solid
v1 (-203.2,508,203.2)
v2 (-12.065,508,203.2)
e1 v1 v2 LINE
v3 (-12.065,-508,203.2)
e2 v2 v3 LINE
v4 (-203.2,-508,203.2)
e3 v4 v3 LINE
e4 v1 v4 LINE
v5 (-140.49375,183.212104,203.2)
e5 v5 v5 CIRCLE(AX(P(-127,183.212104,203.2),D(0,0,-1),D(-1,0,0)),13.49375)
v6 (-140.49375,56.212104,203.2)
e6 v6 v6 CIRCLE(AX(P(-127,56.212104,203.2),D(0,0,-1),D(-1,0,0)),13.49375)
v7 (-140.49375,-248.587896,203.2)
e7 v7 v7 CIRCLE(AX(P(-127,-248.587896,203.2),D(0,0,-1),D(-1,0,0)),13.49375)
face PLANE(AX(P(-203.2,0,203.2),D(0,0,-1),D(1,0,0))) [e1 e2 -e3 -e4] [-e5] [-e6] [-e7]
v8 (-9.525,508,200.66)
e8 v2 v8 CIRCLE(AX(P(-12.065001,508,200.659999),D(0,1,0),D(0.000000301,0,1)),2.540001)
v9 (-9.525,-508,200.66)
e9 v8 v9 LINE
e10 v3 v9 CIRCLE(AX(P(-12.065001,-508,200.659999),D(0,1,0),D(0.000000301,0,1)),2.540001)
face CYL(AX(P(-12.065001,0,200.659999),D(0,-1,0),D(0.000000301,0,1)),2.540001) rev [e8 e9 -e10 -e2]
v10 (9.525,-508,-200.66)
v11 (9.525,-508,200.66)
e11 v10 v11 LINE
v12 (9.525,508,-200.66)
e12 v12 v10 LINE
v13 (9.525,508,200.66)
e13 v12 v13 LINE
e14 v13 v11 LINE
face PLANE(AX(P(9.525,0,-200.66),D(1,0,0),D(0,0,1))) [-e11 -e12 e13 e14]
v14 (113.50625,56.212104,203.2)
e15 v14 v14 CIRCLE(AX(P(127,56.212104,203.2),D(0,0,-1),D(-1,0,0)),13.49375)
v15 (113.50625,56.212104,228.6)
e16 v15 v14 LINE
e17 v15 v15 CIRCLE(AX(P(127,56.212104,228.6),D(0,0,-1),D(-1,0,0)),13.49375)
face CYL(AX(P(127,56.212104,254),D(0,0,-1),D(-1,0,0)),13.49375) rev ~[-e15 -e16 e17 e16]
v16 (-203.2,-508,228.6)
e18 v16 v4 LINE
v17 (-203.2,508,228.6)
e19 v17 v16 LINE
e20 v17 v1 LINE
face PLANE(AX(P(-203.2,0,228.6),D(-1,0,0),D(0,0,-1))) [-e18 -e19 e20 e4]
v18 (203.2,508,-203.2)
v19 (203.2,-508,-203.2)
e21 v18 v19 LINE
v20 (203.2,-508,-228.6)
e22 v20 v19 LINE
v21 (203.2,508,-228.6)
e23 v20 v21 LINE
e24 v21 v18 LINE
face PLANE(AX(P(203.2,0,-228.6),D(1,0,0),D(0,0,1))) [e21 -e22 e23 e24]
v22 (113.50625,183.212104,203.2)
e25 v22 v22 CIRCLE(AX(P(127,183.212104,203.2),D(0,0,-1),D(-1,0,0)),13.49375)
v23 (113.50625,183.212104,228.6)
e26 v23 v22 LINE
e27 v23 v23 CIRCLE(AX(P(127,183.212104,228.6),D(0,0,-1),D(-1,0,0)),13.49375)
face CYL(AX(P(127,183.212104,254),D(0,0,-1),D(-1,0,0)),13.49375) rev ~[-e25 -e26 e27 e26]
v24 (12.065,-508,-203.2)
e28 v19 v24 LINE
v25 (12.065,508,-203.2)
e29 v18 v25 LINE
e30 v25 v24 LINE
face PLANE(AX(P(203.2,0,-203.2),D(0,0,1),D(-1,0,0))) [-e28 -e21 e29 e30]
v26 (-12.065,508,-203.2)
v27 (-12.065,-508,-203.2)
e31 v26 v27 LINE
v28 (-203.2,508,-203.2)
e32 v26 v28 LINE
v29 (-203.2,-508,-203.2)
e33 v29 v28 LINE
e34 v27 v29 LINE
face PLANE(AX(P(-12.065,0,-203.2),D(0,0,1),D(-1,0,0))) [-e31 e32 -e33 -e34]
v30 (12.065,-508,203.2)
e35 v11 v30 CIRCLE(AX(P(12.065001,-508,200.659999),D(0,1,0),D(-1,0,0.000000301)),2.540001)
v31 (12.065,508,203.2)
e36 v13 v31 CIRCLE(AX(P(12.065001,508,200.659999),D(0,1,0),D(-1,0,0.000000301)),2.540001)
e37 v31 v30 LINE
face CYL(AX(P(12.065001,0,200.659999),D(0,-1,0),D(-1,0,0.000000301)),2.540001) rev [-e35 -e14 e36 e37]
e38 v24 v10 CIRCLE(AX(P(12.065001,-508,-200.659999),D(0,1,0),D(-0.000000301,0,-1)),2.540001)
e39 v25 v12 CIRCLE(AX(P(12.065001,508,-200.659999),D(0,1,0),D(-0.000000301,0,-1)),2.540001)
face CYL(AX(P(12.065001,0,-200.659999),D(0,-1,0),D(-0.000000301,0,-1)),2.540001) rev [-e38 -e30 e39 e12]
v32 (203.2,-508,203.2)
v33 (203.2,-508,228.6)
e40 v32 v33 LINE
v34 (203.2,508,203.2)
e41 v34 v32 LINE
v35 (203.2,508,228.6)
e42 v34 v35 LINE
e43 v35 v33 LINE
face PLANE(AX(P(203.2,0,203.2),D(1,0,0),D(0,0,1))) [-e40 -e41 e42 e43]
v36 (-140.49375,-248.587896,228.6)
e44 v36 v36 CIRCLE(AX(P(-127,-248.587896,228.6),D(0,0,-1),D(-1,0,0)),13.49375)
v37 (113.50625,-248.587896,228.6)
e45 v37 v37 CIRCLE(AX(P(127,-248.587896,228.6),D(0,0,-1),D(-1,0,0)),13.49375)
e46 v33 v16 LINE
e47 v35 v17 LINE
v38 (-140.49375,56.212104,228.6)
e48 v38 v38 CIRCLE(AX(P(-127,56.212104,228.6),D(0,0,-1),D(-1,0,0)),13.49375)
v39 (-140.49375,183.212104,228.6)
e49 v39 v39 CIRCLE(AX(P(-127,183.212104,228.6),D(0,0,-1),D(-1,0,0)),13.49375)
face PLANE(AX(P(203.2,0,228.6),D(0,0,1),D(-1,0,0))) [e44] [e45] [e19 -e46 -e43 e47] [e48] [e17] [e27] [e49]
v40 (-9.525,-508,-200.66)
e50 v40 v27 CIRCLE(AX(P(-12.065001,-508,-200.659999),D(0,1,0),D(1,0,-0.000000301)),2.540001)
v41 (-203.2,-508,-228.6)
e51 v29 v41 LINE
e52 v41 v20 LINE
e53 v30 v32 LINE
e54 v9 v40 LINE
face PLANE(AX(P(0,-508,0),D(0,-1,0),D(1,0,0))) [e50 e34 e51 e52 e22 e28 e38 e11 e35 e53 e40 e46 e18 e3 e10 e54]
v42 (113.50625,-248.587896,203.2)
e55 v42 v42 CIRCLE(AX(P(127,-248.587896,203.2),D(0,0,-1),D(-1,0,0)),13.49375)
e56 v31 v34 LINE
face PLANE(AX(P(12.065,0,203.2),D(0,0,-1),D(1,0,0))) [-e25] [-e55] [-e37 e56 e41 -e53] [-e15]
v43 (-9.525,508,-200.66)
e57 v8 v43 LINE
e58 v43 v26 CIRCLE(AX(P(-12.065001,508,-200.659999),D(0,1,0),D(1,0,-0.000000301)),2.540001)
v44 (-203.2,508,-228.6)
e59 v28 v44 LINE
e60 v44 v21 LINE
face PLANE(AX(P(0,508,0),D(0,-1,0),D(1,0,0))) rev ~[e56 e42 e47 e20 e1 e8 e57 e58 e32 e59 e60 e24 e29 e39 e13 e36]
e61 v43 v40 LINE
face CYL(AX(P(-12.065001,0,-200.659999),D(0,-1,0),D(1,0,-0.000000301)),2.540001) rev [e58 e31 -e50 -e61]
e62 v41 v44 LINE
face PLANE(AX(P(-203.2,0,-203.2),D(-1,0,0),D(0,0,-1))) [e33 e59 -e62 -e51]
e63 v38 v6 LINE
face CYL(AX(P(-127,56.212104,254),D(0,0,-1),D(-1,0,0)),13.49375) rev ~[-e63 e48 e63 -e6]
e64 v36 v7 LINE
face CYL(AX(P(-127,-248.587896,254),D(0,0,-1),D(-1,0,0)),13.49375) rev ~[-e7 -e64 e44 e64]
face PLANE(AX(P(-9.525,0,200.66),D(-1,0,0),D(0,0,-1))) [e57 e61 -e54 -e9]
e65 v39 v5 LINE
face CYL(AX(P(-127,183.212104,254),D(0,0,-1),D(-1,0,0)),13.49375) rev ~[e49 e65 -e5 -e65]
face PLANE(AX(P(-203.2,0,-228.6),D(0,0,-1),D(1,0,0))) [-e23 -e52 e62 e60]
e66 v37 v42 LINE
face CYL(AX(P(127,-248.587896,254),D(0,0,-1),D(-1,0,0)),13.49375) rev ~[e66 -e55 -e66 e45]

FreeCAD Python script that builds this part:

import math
import FreeCAD as App
import Part
import Sketcher
Q = App.Units.Quantity

doc = App.newDocument("Part")
params = doc.addObject("Spreadsheet::Sheet", "Params")
for row, (alias, value) in enumerate([
    ("sketch1_radius", "0.1 in"),
    ("sketch1_width", "16 in"),
    ("sketch1_height", "1 in"),
    ("sketch1_height2", "15.8 in"),
    ("sketch1_width2", "7.525 in"),
    ("pad1_length", "40 in"),
    ("sketch2_diameter", "1.0625 in"),
    ("hole_diameter", "1.0625 in"),
    ("hole_depth", "1 in"),
], start=1):
    params.set(f"A{row}", alias)
    params.set(f"B{row}", "=" + value)
    params.setAlias(f"B{row}", alias)

body = doc.addObject("PartDesign::Body", "Body")

# Sketch on XZ plane
sketch1 = body.newObject("Sketcher::SketchObject", "Sketch")
sketch1.AttachmentSupport = (doc.getObject("XZ_Plane"), [""])
sketch1.MapMode = "FlatFace"
sketch1.addGeometry([
    Part.LineSegment(App.Vector(203.2, -228.6, 0), App.Vector(203.2, -203.2, 0)),  # 0
    Part.LineSegment(App.Vector(203.2, -203.2, 0), App.Vector(12.1, -203.2, 0)),  # 1
    Part.ArcOfCircle(Part.Circle(App.Vector(12.1, -200.7, 0), App.Vector(0, 0, 1), 2.5), math.radians(-180), math.radians(-90)),  # 2
    Part.LineSegment(App.Vector(9.5, -200.7, 0), App.Vector(9.5, 200.7, 0)),  # 3
    Part.ArcOfCircle(Part.Circle(App.Vector(12.1, 200.7, 0), App.Vector(0, 0, 1), 2.5), math.radians(90), math.radians(180)),  # 4
    Part.LineSegment(App.Vector(12.1, 203.2, 0), App.Vector(203.2, 203.2, 0)),  # 5
    Part.LineSegment(App.Vector(203.2, 203.2, 0), App.Vector(203.2, 228.6, 0)),  # 6
    Part.LineSegment(App.Vector(203.2, 228.6, 0), App.Vector(-203.2, 228.6, 0)),  # 7
    Part.LineSegment(App.Vector(-203.2, 228.6, 0), App.Vector(-203.2, 203.2, 0)),  # 8
    Part.LineSegment(App.Vector(-203.2, 203.2, 0), App.Vector(-12.1, 203.2, 0)),  # 9
    Part.ArcOfCircle(Part.Circle(App.Vector(-12.1, 200.7, 0), App.Vector(0, 0, 1), 2.5), math.radians(0), math.radians(90)),  # 10
    Part.LineSegment(App.Vector(-9.5, 200.7, 0), App.Vector(-9.5, -200.7, 0)),  # 11
    Part.ArcOfCircle(Part.Circle(App.Vector(-12.1, -200.7, 0), App.Vector(0, 0, 1), 2.5), math.radians(-90), math.radians(0)),  # 12
    Part.LineSegment(App.Vector(-12.1, -203.2, 0), App.Vector(-203.2, -203.2, 0)),  # 13
    Part.LineSegment(App.Vector(-203.2, -203.2, 0), App.Vector(-203.2, -228.6, 0)),  # 14
    Part.LineSegment(App.Vector(-203.2, -228.6, 0), App.Vector(203.2, -228.6, 0)),  # 15
], False)
sketch1.addConstraint([
    Sketcher.Constraint("Coincident", 0, 2, 1, 1),
    Sketcher.Constraint("Tangent", 1, 2, 2, 2),
    Sketcher.Constraint("Tangent", 2, 1, 3, 1),
    Sketcher.Constraint("Tangent", 3, 2, 4, 2),
    Sketcher.Constraint("Tangent", 4, 1, 5, 1),
    Sketcher.Constraint("Coincident", 5, 2, 6, 1),
    Sketcher.Constraint("Coincident", 6, 2, 7, 1),
    Sketcher.Constraint("Coincident", 7, 2, 8, 1),
    Sketcher.Constraint("Coincident", 8, 2, 9, 1),
    Sketcher.Constraint("Tangent", 9, 2, 10, 2),
    Sketcher.Constraint("Tangent", 10, 1, 11, 1),
    Sketcher.Constraint("Tangent", 11, 2, 12, 2),
    Sketcher.Constraint("Tangent", 12, 1, 13, 1),
    Sketcher.Constraint("Coincident", 13, 2, 14, 1),
    Sketcher.Constraint("Coincident", 14, 2, 15, 1),
    Sketcher.Constraint("Coincident", 15, 2, 0, 1),
    Sketcher.Constraint("Vertical", 0),
    Sketcher.Constraint("Horizontal", 1),
    Sketcher.Constraint("Vertical", 3),
    Sketcher.Constraint("Horizontal", 5),
    Sketcher.Constraint("Vertical", 6),
    Sketcher.Constraint("Horizontal", 7),
    Sketcher.Constraint("Vertical", 8),
    Sketcher.Constraint("Horizontal", 9),
    Sketcher.Constraint("Vertical", 11),
    Sketcher.Constraint("Horizontal", 13),
    Sketcher.Constraint("Vertical", 14),
    Sketcher.Constraint("Horizontal", 15),
    Sketcher.Constraint("Equal", 2, 4),
    Sketcher.Constraint("Equal", 4, 10),
    Sketcher.Constraint("Equal", 10, 12),
    Sketcher.Constraint("Symmetric", 2, 3, 10, 3, -1, 1),
    Sketcher.Constraint("Symmetric", 5, 2, 13, 2, -1, 1),
    Sketcher.Constraint("Symmetric", 7, 2, 15, 2, -1, 1),
    Sketcher.Constraint("Symmetric", 5, 2, 8, 2, -2),
    Sketcher.Constraint("Radius", 2, Q("0.1 in")),
    Sketcher.Constraint("DistanceX", 7, 2, 7, 1, Q("16 in")),
    Sketcher.Constraint("DistanceY", 0, 1, 0, 2, Q("1 in")),
    Sketcher.Constraint("DistanceY", 3, 1, 3, 2, Q("15.8 in")),
    Sketcher.Constraint("DistanceX", 1, 2, 1, 1, Q("7.525 in")),
])
sketch1.setExpression("Constraints[35]", "Params.sketch1_radius")
sketch1.setExpression("Constraints[36]", "Params.sketch1_width")
sketch1.setExpression("Constraints[37]", "Params.sketch1_height")
sketch1.setExpression("Constraints[38]", "Params.sketch1_height2")
sketch1.setExpression("Constraints[39]", "Params.sketch1_width2")
pad1 = body.newObject("PartDesign::Pad", "Pad")
pad1.Profile = sketch1
pad1.setExpression("Length", "Params.pad1_length")
pad1.Midplane = True

# Sketch on XY plane
sketch2 = body.newObject("Sketcher::SketchObject", "Sketch001")
sketch2.AttachmentSupport = (doc.getObject("XY_Plane"), [""])
sketch2.MapMode = "FlatFace"
sketch2.AttachmentOffset = App.Placement(App.Vector(0, 0, 9 * 25.4), App.Rotation())
sketch2.addGeometry([
    Part.Circle(App.Vector(-127, 183, 0), App.Vector(0, 0, 1), 13),  # 0
    Part.Circle(App.Vector(-127, 56, 0), App.Vector(0, 0, 1), 13),  # 1
    Part.Circle(App.Vector(-127, -249, 0), App.Vector(0, 0, 1), 13),  # 2
    Part.Circle(App.Vector(127, -249, 0), App.Vector(0, 0, 1), 13),  # 3
    Part.Circle(App.Vector(127, 56, 0), App.Vector(0, 0, 1), 13),  # 4
    Part.Circle(App.Vector(127, 183, 0), App.Vector(0, 0, 1), 13),  # 5
], False)
sketch2.addConstraint([
    Sketcher.Constraint("Equal", 0, 1),
    Sketcher.Constraint("Equal", 1, 2),
    Sketcher.Constraint("Equal", 2, 3),
    Sketcher.Constraint("Equal", 3, 4),
    Sketcher.Constraint("Equal", 4, 5),
    Sketcher.Constraint("Symmetric", 2, 3, 3, 3, -2),
    Sketcher.Constraint("Symmetric", 1, 3, 4, 3, -2),
    Sketcher.Constraint("Symmetric", 0, 3, 5, 3, -2),
    Sketcher.Constraint("Vertical", 0, 3, 1, 3),
    Sketcher.Constraint("Vertical", 1, 3, 2, 3),
    Sketcher.Constraint("Diameter", 0, Q("1.0625 in")),
    Sketcher.Constraint("DistanceX", 0, 3, -1, 1, Q("5 in")),
    Sketcher.Constraint("DistanceY", 1, 3, 0, 3, Q("5 in")),
    Sketcher.Constraint("DistanceY", 2, 3, 1, 3, Q("12 in")),
    Sketcher.Constraint("DistanceY", -1, 1, 0, 3, 183.212104),
])
sketch2.setExpression("Constraints[10]", "Params.sketch2_diameter")
doc.recompute()
hole = body.newObject("PartDesign::Hole", "Hole")
hole.Profile = sketch2
hole.ThreadType = "None"
hole.setExpression("Diameter", "Params.hole_diameter")
hole.DepthType = "Dimension"
hole.setExpression("Depth", "Params.hole_depth")
hole.DrillPoint = "Flat"

doc.recompute()
